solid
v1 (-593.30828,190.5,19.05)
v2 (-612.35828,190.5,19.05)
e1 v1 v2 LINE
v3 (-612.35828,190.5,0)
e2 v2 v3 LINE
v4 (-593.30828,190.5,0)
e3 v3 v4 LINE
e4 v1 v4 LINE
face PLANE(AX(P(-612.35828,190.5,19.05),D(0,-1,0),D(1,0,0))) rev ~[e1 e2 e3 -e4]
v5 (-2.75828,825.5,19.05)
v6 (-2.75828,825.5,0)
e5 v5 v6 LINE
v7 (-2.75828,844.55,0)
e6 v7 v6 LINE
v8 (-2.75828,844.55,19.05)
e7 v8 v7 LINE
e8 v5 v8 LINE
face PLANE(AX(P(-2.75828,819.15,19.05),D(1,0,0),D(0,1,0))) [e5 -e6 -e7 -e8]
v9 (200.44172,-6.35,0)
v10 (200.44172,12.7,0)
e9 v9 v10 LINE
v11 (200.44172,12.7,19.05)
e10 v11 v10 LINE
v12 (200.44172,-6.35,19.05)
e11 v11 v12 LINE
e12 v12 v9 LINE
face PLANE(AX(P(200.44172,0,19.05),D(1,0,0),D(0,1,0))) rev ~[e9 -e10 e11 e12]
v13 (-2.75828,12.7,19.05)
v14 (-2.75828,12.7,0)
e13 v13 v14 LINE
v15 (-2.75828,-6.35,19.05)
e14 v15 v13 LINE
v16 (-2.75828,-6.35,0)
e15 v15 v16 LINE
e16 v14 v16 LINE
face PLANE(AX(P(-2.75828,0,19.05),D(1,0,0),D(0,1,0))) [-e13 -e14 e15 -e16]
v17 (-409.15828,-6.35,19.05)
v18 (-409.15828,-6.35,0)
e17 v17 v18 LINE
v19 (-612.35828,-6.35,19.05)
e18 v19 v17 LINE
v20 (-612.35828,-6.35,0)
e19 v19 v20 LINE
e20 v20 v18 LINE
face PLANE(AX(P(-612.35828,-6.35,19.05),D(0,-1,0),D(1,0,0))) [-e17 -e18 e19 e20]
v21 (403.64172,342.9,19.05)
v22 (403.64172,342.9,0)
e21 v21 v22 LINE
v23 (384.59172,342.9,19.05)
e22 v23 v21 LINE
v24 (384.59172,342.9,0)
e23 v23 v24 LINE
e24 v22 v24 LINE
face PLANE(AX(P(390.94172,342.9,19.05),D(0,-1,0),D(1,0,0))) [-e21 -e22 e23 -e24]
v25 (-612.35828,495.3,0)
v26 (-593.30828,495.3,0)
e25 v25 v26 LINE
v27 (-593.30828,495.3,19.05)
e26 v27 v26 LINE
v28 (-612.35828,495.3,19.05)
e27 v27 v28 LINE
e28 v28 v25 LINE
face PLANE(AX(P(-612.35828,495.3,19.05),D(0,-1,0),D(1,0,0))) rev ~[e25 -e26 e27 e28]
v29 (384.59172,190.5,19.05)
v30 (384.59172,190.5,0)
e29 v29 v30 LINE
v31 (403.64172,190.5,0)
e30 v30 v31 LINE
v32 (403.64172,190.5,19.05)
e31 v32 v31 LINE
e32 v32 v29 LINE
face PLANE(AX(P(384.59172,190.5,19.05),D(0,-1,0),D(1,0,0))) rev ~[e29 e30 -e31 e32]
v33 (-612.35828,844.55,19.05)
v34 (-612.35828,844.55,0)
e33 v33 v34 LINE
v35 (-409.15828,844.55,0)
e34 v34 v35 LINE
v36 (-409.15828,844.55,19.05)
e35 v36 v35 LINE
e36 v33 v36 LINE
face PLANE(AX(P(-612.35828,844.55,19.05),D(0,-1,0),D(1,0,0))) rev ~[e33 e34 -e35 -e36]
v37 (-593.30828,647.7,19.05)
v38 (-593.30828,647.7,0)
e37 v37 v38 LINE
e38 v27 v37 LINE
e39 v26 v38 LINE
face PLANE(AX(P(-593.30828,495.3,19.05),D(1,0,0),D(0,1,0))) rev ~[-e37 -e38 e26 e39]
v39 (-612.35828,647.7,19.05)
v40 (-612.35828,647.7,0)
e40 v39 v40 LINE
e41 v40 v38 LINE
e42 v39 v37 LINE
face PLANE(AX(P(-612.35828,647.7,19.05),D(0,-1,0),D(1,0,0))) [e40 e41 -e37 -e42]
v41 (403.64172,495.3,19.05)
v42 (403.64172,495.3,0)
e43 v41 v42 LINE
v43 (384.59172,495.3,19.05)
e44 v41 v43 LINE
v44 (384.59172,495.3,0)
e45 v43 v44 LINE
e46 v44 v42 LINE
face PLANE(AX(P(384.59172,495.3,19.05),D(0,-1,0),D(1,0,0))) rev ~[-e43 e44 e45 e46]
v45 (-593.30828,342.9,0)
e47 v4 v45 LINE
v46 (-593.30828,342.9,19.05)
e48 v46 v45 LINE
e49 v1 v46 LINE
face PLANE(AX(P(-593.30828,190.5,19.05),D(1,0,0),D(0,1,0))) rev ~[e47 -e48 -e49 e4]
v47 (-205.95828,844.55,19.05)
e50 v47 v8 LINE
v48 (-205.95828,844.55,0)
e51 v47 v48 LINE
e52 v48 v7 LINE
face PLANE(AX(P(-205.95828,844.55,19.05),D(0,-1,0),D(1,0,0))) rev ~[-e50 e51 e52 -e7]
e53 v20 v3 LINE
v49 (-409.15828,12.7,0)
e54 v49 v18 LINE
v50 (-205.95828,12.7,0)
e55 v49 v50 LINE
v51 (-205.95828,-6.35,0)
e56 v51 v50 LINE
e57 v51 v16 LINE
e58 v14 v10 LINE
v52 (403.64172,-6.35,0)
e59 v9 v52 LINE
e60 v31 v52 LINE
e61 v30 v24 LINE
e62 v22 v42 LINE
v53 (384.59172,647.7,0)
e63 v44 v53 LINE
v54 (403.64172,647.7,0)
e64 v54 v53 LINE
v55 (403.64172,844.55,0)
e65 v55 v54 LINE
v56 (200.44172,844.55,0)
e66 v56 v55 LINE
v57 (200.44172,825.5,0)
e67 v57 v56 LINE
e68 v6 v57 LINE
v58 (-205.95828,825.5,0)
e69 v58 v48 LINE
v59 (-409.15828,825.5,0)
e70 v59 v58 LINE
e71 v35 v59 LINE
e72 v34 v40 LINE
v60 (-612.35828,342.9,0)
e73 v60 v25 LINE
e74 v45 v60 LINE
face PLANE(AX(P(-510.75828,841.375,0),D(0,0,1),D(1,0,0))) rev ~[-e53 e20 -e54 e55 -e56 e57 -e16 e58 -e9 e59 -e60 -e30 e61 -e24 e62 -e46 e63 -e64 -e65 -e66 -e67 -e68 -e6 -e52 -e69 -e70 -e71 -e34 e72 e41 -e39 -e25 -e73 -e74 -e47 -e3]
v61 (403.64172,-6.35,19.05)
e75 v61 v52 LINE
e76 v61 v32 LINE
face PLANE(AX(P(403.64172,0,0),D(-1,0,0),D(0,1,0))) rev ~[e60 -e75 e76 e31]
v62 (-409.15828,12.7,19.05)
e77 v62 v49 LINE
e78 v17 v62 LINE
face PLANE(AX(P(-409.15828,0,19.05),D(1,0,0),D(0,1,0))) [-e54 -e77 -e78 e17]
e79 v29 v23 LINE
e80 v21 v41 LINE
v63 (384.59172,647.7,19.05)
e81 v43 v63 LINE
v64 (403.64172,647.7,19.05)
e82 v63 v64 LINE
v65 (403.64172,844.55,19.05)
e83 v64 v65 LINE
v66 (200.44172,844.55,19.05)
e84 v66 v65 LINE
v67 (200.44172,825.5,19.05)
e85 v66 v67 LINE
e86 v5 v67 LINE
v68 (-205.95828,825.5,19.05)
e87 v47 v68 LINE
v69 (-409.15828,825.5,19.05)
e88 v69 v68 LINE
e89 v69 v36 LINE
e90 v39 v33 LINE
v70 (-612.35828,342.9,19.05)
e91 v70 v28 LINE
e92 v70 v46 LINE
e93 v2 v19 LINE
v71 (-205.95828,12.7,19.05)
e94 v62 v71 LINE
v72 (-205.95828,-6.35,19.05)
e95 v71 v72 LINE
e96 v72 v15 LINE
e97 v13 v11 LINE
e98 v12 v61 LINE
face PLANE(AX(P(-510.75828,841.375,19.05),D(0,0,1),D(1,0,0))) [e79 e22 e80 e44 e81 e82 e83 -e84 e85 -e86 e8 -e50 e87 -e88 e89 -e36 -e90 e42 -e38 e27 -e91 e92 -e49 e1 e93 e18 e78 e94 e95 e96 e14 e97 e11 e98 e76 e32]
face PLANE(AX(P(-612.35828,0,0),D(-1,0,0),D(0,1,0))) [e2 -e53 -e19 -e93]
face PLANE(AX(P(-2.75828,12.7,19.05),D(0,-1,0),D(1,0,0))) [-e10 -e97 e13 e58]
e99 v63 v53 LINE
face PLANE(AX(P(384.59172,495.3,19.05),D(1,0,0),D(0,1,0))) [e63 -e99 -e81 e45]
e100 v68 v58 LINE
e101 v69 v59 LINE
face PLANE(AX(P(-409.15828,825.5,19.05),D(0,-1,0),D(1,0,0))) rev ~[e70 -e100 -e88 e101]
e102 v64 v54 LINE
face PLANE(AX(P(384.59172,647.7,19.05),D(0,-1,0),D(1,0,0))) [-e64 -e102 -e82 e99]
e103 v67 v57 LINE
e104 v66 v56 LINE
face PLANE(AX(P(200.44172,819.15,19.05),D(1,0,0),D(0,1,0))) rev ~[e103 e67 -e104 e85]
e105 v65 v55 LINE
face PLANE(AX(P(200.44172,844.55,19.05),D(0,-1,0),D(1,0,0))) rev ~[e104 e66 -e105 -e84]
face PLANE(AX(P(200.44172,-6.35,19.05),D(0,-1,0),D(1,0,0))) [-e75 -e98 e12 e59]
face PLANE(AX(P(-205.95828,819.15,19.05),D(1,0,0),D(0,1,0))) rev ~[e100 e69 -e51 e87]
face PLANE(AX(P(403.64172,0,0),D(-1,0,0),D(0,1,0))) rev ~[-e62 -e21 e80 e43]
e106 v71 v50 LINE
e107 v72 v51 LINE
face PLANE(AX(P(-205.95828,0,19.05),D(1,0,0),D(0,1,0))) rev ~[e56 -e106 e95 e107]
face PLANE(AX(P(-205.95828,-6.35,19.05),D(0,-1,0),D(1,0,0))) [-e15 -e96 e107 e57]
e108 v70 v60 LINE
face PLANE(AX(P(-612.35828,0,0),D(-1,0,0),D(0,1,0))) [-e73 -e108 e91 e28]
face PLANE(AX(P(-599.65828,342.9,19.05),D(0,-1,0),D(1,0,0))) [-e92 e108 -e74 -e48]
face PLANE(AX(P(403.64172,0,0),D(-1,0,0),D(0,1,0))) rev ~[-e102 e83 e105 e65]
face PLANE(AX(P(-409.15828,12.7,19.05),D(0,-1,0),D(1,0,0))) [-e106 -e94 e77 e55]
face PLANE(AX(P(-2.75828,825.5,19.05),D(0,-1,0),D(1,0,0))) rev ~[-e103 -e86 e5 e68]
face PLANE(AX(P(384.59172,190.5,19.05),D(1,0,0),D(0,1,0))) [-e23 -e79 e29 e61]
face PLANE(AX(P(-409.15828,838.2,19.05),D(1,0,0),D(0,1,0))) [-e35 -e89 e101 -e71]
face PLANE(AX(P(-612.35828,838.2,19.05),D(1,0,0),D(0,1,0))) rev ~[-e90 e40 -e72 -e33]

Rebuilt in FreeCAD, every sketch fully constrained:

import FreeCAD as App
import Part
import Sketcher
from FreeCAD import Vector
Q = App.Units.Quantity

doc = App.newDocument("Part")
body = doc.addObject("PartDesign::Body", "Body")

# Sketch on XY plane
sketch1 = body.newObject("Sketcher::SketchObject", "Sketch")
sketch1.AttachmentSupport = (doc.getObject("XY_Plane"), [""])
sketch1.MapMode = "FlatFace"
sketch1.addGeometry([
    Part.LineSegment(Vector(-612, 838, 0), Vector(-612, 0, 0)),
    Part.LineSegment(Vector(-612, 0, 0), Vector(404, 0, 0)),
    Part.LineSegment(Vector(404, 0, 0), Vector(404, 838, 0)),
    Part.LineSegment(Vector(404, 838, 0), Vector(-612, 838, 0)),
], False)
sketch1.addConstraint([
    Sketcher.Constraint("Coincident", 0, 2, 1, 1),
    Sketcher.Constraint("Coincident", 1, 2, 2, 1),
    Sketcher.Constraint("Coincident", 2, 2, 3, 1),
    Sketcher.Constraint("Coincident", 3, 2, 0, 1),
    Sketcher.Constraint("Vertical", 0),
    Sketcher.Constraint("Horizontal", 1),
    Sketcher.Constraint("Vertical", 2),
    Sketcher.Constraint("Horizontal", 3),
    Sketcher.Constraint("PointOnObject", 0, 2, -1),
    Sketcher.Constraint("DistanceX", 1, 1, 1, 2, Q("40 in")),
    Sketcher.Constraint("DistanceY", 0, 2, 0, 1, Q("33 in")),
    Sketcher.Constraint("DistanceX", 0, 2, -1, 1, Q("612.35828 mm")),
])
pad1 = body.newObject("PartDesign::Pad", "Pad")
pad1.Profile = sketch1
pad1.Length = Q("0.75 in")

# Sketch on XY plane
sketch2 = body.newObject("Sketcher::SketchObject", "Sketch001")
sketch2.AttachmentSupport = (doc.getObject("XY_Plane"), [""])
sketch2.MapMode = "FlatFace"
sketch2.AttachmentOffset = App.Placement(Vector(0, 0, 0.75 * 25.4), App.Rotation())
sketch2.addGeometry([
    Part.LineSegment(Vector(391, 343, 0), Vector(391, 190, 0)),  # 0
    Part.LineSegment(Vector(391, 190, 0), Vector(404, 190, 0)),  # 1
    Part.LineSegment(Vector(404, 190, 0), Vector(404, 343, 0)),  # 2
    Part.LineSegment(Vector(404, 343, 0), Vector(391, 343, 0)),  # 3
    Part.LineSegment(Vector(385, 648, 0), Vector(385, 495, 0)),  # 4
    Part.LineSegment(Vector(385, 495, 0), Vector(404, 495, 0)),  # 5
    Part.LineSegment(Vector(404, 495, 0), Vector(404, 648, 0)),  # 6
    Part.LineSegment(Vector(404, 648, 0), Vector(385, 648, 0)),  # 7
    Part.LineSegment(Vector(-612, 343, 0), Vector(-612, 190, 0)),  # 8
    Part.LineSegment(Vector(-612, 190, 0), Vector(-600, 190, 0)),  # 9
    Part.LineSegment(Vector(-600, 190, 0), Vector(-600, 343, 0)),  # 10
    Part.LineSegment(Vector(-600, 343, 0), Vector(-612, 343, 0)),  # 11
    Part.LineSegment(Vector(-612, 648, 0), Vector(-612, 495, 0)),  # 12
    Part.LineSegment(Vector(-612, 495, 0), Vector(-600, 495, 0)),  # 13
    Part.LineSegment(Vector(-600, 495, 0), Vector(-600, 648, 0)),  # 14
    Part.LineSegment(Vector(-600, 648, 0), Vector(-612, 648, 0)),  # 15
    Part.LineSegment(Vector(-409, 19, 0), Vector(-409, 0, 0)),  # 16
    Part.LineSegment(Vector(-409, 0, 0), Vector(-206, 0, 0)),  # 17
    Part.LineSegment(Vector(-206, 0, 0), Vector(-206, 19, 0)),  # 18
    Part.LineSegment(Vector(-206, 19, 0), Vector(-409, 19, 0)),  # 19
    Part.LineSegment(Vector(-3, 19, 0), Vector(-3, 0, 0)),  # 20
    Part.LineSegment(Vector(-3, 0, 0), Vector(200, 0, 0)),  # 21
    Part.LineSegment(Vector(200, 0, 0), Vector(200, 19, 0)),  # 22
    Part.LineSegment(Vector(200, 19, 0), Vector(-3, 19, 0)),  # 23
    Part.LineSegment(Vector(-3, 838, 0), Vector(-3, 819, 0)),  # 24
    Part.LineSegment(Vector(-3, 819, 0), Vector(200, 819, 0)),  # 25
    Part.LineSegment(Vector(200, 819, 0), Vector(200, 838, 0)),  # 26
    Part.LineSegment(Vector(200, 838, 0), Vector(-3, 838, 0)),  # 27
    Part.LineSegment(Vector(-409, 838, 0), Vector(-409, 819, 0)),  # 28
    Part.LineSegment(Vector(-409, 819, 0), Vector(-206, 819, 0)),  # 29
    Part.LineSegment(Vector(-206, 819, 0), Vector(-206, 838, 0)),  # 30
    Part.LineSegment(Vector(-206, 838, 0), Vector(-409, 838, 0)),  # 31
], False)
sketch2.addConstraint([
    Sketcher.Constraint("Coincident", 0, 2, 1, 1),
    Sketcher.Constraint("Coincident", 1, 2, 2, 1),
    Sketcher.Constraint("Coincident", 2, 2, 3, 1),
    Sketcher.Constraint("Coincident", 3, 2, 0, 1),
    Sketcher.Constraint("Coincident", 4, 2, 5, 1),
    Sketcher.Constraint("Coincident", 5, 2, 6, 1),
    Sketcher.Constraint("Coincident", 6, 2, 7, 1),
    Sketcher.Constraint("Coincident", 7, 2, 4, 1),
    Sketcher.Constraint("Coincident", 8, 2, 9, 1),
    Sketcher.Constraint("Coincident", 9, 2, 10, 1),
    Sketcher.Constraint("Coincident", 10, 2, 11, 1),
    Sketcher.Constraint("Coincident", 11, 2, 8, 1),
    Sketcher.Constraint("Coincident", 12, 2, 13, 1),
    Sketcher.Constraint("Coincident", 13, 2, 14, 1),
    Sketcher.Constraint("Coincident", 14, 2, 15, 1),
    Sketcher.Constraint("Coincident", 15, 2, 12, 1),
    Sketcher.Constraint("Coincident", 16, 2, 17, 1),
    Sketcher.Constraint("Coincident", 17, 2, 18, 1),
    Sketcher.Constraint("Coincident", 18, 2, 19, 1),
    Sketcher.Constraint("Coincident", 19, 2, 16, 1),
    Sketcher.Constraint("Coincident", 20, 2, 21, 1),
    Sketcher.Constraint("Coincident", 21, 2, 22, 1),
    Sketcher.Constraint("Coincident", 22, 2, 23, 1),
    Sketcher.Constraint("Coincident", 23, 2, 20, 1),
    Sketcher.Constraint("Coincident", 24, 2, 25, 1),
    Sketcher.Constraint("Coincident", 25, 2, 26, 1),
    Sketcher.Constraint("Coincident", 26, 2, 27, 1),
    Sketcher.Constraint("Coincident", 27, 2, 24, 1),
    Sketcher.Constraint("Coincident", 28, 2, 29, 1),
    Sketcher.Constraint("Coincident", 29, 2, 30, 1),
    Sketcher.Constraint("Coincident", 30, 2, 31, 1),
    Sketcher.Constraint("Coincident", 31, 2, 28, 1),
    Sketcher.Constraint("Vertical", 0),
    Sketcher.Constraint("Horizontal", 1),
    Sketcher.Constraint("Vertical", 2),
    Sketcher.Constraint("Horizontal", 3),
    Sketcher.Constraint("Vertical", 4),
    Sketcher.Constraint("Horizontal", 5),
    Sketcher.Constraint("Vertical", 6),
    Sketcher.Constraint("Horizontal", 7),
    Sketcher.Constraint("Vertical", 8),
    Sketcher.Constraint("Horizontal", 9),
    Sketcher.Constraint("Vertical", 10),
    Sketcher.Constraint("Horizontal", 11),
    Sketcher.Constraint("Vertical", 12),
    Sketcher.Constraint("Horizontal", 13),
    Sketcher.Constraint("Vertical", 14),
    Sketcher.Constraint("Horizontal", 15),
    Sketcher.Constraint("Vertical", 16),
    Sketcher.Constraint("Horizontal", 17),
    Sketcher.Constraint("Vertical", 18),
    Sketcher.Constraint("Horizontal", 19),
    Sketcher.Constraint("Vertical", 20),
    Sketcher.Constraint("Horizontal", 21),
    Sketcher.Constraint("Vertical", 22),
    Sketcher.Constraint("Horizontal", 23),
    Sketcher.Constraint("Vertical", 24),
    Sketcher.Constraint("Horizontal", 25),
    Sketcher.Constraint("Vertical", 26),
    Sketcher.Constraint("Horizontal", 27),
    Sketcher.Constraint("Vertical", 28),
    Sketcher.Constraint("Horizontal", 29),
    Sketcher.Constraint("Vertical", 30),
    Sketcher.Constraint("Horizontal", 31),
    Sketcher.Constraint("PointOnObject", 16, 2, -1),
    Sketcher.Constraint("PointOnObject", 20, 2, -1),
    Sketcher.Constraint("Horizontal", 1, 2, 8, 2),
    Sketcher.Constraint("Horizontal", 3, 2, 10, 2),
    Sketcher.Constraint("Horizontal", 5, 2, 12, 2),
    Sketcher.Constraint("Horizontal", 7, 2, 14, 2),
    Sketcher.Constraint("Horizontal", 19, 2, 22, 2),
    Sketcher.Constraint("Horizontal", 25, 2, 28, 2),
    Sketcher.Constraint("Horizontal", 27, 2, 30, 2),
    Sketcher.Constraint("Vertical", 2, 2, 5, 2),
    Sketcher.Constraint("Vertical", 11, 2, 12, 2),
    Sketcher.Constraint("Vertical", 10, 2, 13, 2),
    Sketcher.Constraint("Vertical", 23, 2, 24, 2),
    Sketcher.Constraint("Vertical", 22, 2, 25, 2),
    Sketcher.Constraint("Vertical", 19, 2, 28, 2),
    Sketcher.Constraint("Vertical", 18, 2, 29, 2),
    Sketcher.Constraint("Equal", 3, 9),
    Sketcher.Constraint("Equal", 19, 21),
    Sketcher.Constraint("Equal", 2, 4),
    Sketcher.Constraint("Equal", 7, 16),
    Sketcher.Constraint("Equal", 22, 24),
    Sketcher.Constraint("DistanceX", 17, 1, 17, 2, Q("8 in")),
    Sketcher.Constraint("DistanceY", 0, 2, 0, 1, Q("6 in")),
    Sketcher.Constraint("DistanceX", 1, 1, 1, 2, Q("0.5 in")),
    Sketcher.Constraint("DistanceY", -1, 1, 26, 2, Q("33 in")),
    Sketcher.Constraint("DistanceY", 3, 2, 4, 2, Q("6 in")),
    Sketcher.Constraint("DistanceX", 8, 2, 1, 2, Q("40 in")),
    Sketcher.Constraint("DistanceX", 8, 2, 16, 2, Q("8 in")),
    Sketcher.Constraint("DistanceX", 17, 2, 20, 2, Q("8 in")),
    Sketcher.Constraint("DistanceX", 5, 1, 5, 2, Q("0.75 in")),
    Sketcher.Constraint("DistanceY", -1, 1, 0, 2, Q("7.5 in")),
    Sketcher.Constraint("DistanceX", -1, 1, 0, 2, Q("390.94172 mm")),
])
pocket1 = body.newObject("PartDesign::Pocket", "Pocket")
pocket1.Profile = sketch2
pocket1.Type = "ThroughAll"

# Sketch on XY plane
sketch3 = body.newObject("Sketcher::SketchObject", "Sketch002")
sketch3.AttachmentSupport = (doc.getObject("XY_Plane"), [""])
sketch3.MapMode = "FlatFace"
sketch3.AttachmentOffset = App.Placement(Vector(0, 0, 0.75 * 25.4), App.Rotation())
sketch3.addGeometry([
    Part.LineSegment(Vector(-612, 845, 0), Vector(-612, 838, 0)),  # 0
    Part.LineSegment(Vector(-612, 838, 0), Vector(-409, 838, 0)),  # 1
    Part.LineSegment(Vector(-409, 838, 0), Vector(-409, 845, 0)),  # 2
    Part.LineSegment(Vector(-409, 845, 0), Vector(-612, 845, 0)),  # 3
    Part.LineSegment(Vector(-3, 826, 0), Vector(-3, 819, 0)),  # 4
    Part.LineSegment(Vector(-3, 819, 0), Vector(200, 819, 0)),  # 5
    Part.LineSegment(Vector(200, 819, 0), Vector(200, 826, 0)),  # 6
    Part.LineSegment(Vector(200, 826, 0), Vector(-3, 826, 0)),  # 7
    Part.LineSegment(Vector(-409, 826, 0), Vector(-409, 819, 0)),  # 8
    Part.LineSegment(Vector(-409, 819, 0), Vector(-206, 819, 0)),  # 9
    Part.LineSegment(Vector(-206, 819, 0), Vector(-206, 826, 0)),  # 10
    Part.LineSegment(Vector(-206, 826, 0), Vector(-409, 826, 0)),  # 11
    Part.LineSegment(Vector(-206, 845, 0), Vector(-206, 838, 0)),  # 12
    Part.LineSegment(Vector(-206, 838, 0), Vector(-3, 838, 0)),  # 13
    Part.LineSegment(Vector(-3, 838, 0), Vector(-3, 845, 0)),  # 14
    Part.LineSegment(Vector(-3, 845, 0), Vector(-206, 845, 0)),  # 15
    Part.LineSegment(Vector(200, 845, 0), Vector(200, 838, 0)),  # 16
    Part.LineSegment(Vector(200, 838, 0), Vector(404, 838, 0)),  # 17
    Part.LineSegment(Vector(404, 838, 0), Vector(404, 845, 0)),  # 18
    Part.LineSegment(Vector(404, 845, 0), Vector(200, 845, 0)),  # 19
    Part.LineSegment(Vector(-409, 19, 0), Vector(-409, 13, 0)),  # 20
    Part.LineSegment(Vector(-409, 13, 0), Vector(-206, 13, 0)),  # 21
    Part.LineSegment(Vector(-206, 13, 0), Vector(-206, 19, 0)),  # 22
    Part.LineSegment(Vector(-206, 19, 0), Vector(-409, 19, 0)),  # 23
    Part.LineSegment(Vector(-612, 0, 0), Vector(-612, -6, 0)),  # 24
    Part.LineSegment(Vector(-612, -6, 0), Vector(-409, -6, 0)),  # 25
    Part.LineSegment(Vector(-409, -6, 0), Vector(-409, 0, 0)),  # 26
    Part.LineSegment(Vector(-409, 0, 0), Vector(-612, 0, 0)),  # 27
    Part.LineSegment(Vector(-3, 19, 0), Vector(-3, 13, 0)),  # 28
    Part.LineSegment(Vector(-3, 13, 0), Vector(200, 13, 0)),  # 29
    Part.LineSegment(Vector(200, 13, 0), Vector(200, 19, 0)),  # 30
    Part.LineSegment(Vector(200, 19, 0), Vector(-3, 19, 0)),  # 31
    Part.LineSegment(Vector(200, 0, 0), Vector(200, -6, 0)),  # 32
    Part.LineSegment(Vector(200, -6, 0), Vector(404, -6, 0)),  # 33
    Part.LineSegment(Vector(404, -6, 0), Vector(404, 0, 0)),  # 34
    Part.LineSegment(Vector(404, 0, 0), Vector(200, 0, 0)),  # 35
    Part.LineSegment(Vector(-206, 0, 0), Vector(-206, -6, 0)),  # 36
    Part.LineSegment(Vector(-206, -6, 0), Vector(-3, -6, 0)),  # 37
    Part.LineSegment(Vector(-3, -6, 0), Vector(-3, 0, 0)),  # 38
    Part.LineSegment(Vector(-3, 0, 0), Vector(-206, 0, 0)),  # 39
    Part.LineSegment(Vector(-600, 343, 0), Vector(-600, 190, 0)),  # 40
    Part.LineSegment(Vector(-600, 190, 0), Vector(-593, 190, 0)),  # 41
    Part.LineSegment(Vector(-593, 190, 0), Vector(-593, 343, 0)),  # 42
    Part.LineSegment(Vector(-593, 343, 0), Vector(-600, 343, 0)),  # 43
    Part.LineSegment(Vector(-600, 648, 0), Vector(-600, 495, 0)),  # 44
    Part.LineSegment(Vector(-600, 495, 0), Vector(-593, 495, 0)),  # 45
    Part.LineSegment(Vector(-593, 495, 0), Vector(-593, 648, 0)),  # 46
    Part.LineSegment(Vector(-593, 648, 0), Vector(-600, 648, 0)),  # 47
    Part.LineSegment(Vector(385, 343, 0), Vector(385, 190, 0)),  # 48
    Part.LineSegment(Vector(385, 190, 0), Vector(391, 190, 0)),  # 49
    Part.LineSegment(Vector(391, 190, 0), Vector(391, 343, 0)),  # 50
    Part.LineSegment(Vector(391, 343, 0), Vector(385, 343, 0)),  # 51
    Part.LineSegment(Vector(378, 648, 0), Vector(378, 495, 0)),  # 52
    Part.LineSegment(Vector(378, 495, 0), Vector(385, 495, 0)),  # 53
    Part.LineSegment(Vector(385, 495, 0), Vector(385, 648, 0)),  # 54
    Part.LineSegment(Vector(385, 648, 0), Vector(378, 648, 0)),  # 55
], False)
sketch3.addConstraint([
    Sketcher.Constraint("Coincident", 0, 2, 1, 1),
    Sketcher.Constraint("Coincident", 1, 2, 2, 1),
    Sketcher.Constraint("Coincident", 2, 2, 3, 1),
    Sketcher.Constraint("Coincident", 3, 2, 0, 1),
    Sketcher.Constraint("Coincident", 4, 2, 5, 1),
    Sketcher.Constraint("Coincident", 5, 2, 6, 1),
    Sketcher.Constraint("Coincident", 6, 2, 7, 1),
    Sketcher.Constraint("Coincident", 7, 2, 4, 1),
    Sketcher.Constraint("Coincident", 8, 2, 9, 1),
    Sketcher.Constraint("Coincident", 9, 2, 10, 1),
    Sketcher.Constraint("Coincident", 10, 2, 11, 1),
    Sketcher.Constraint("Coincident", 11, 2, 8, 1),
    Sketcher.Constraint("Coincident", 12, 2, 13, 1),
    Sketcher.Constraint("Coincident", 13, 2, 14, 1),
    Sketcher.Constraint("Coincident", 14, 2, 15, 1),
    Sketcher.Constraint("Coincident", 15, 2, 12, 1),
    Sketcher.Constraint("Coincident", 16, 2, 17, 1),
    Sketcher.Constraint("Coincident", 17, 2, 18, 1),
    Sketcher.Constraint("Coincident", 18, 2, 19, 1),
    Sketcher.Constraint("Coincident", 19, 2, 16, 1),
    Sketcher.Constraint("Coincident", 20, 2, 21, 1),
    Sketcher.Constraint("Coincident", 21, 2, 22, 1),
    Sketcher.Constraint("Coincident", 22, 2, 23, 1),
    Sketcher.Constraint("Coincident", 23, 2, 20, 1),
    Sketcher.Constraint("Coincident", 24, 2, 25, 1),
    Sketcher.Constraint("Coincident", 25, 2, 26, 1),
    Sketcher.Constraint("Coincident", 26, 2, 27, 1),
    Sketcher.Constraint("Coincident", 27, 2, 24, 1),
    Sketcher.Constraint("Coincident", 28, 2, 29, 1),
    Sketcher.Constraint("Coincident", 29, 2, 30, 1),
    Sketcher.Constraint("Coincident", 30, 2, 31, 1),
    Sketcher.Constraint("Coincident", 31, 2, 28, 1),
    Sketcher.Constraint("Coincident", 32, 2, 33, 1),
    Sketcher.Constraint("Coincident", 33, 2, 34, 1),
    Sketcher.Constraint("Coincident", 34, 2, 35, 1),
    Sketcher.Constraint("Coincident", 35, 2, 32, 1),
    Sketcher.Constraint("Coincident", 36, 2, 37, 1),
    Sketcher.Constraint("Coincident", 37, 2, 38, 1),
    Sketcher.Constraint("Coincident", 38, 2, 39, 1),
    Sketcher.Constraint("Coincident", 39, 2, 36, 1),
    Sketcher.Constraint("Coincident", 40, 2, 41, 1),
    Sketcher.Constraint("Coincident", 41, 2, 42, 1),
    Sketcher.Constraint("Coincident", 42, 2, 43, 1),
    Sketcher.Constraint("Coincident", 43, 2, 40, 1),
    Sketcher.Constraint("Coincident", 44, 2, 45, 1),
    Sketcher.Constraint("Coincident", 45, 2, 46, 1),
    Sketcher.Constraint("Coincident", 46, 2, 47, 1),
    Sketcher.Constraint("Coincident", 47, 2, 44, 1),
    Sketcher.Constraint("Coincident", 48, 2, 49, 1),
    Sketcher.Constraint("Coincident", 49, 2, 50, 1),
    Sketcher.Constraint("Coincident", 50, 2, 51, 1),
    Sketcher.Constraint("Coincident", 51, 2, 48, 1),
    Sketcher.Constraint("Coincident", 52, 2, 53, 1),
    Sketcher.Constraint("Coincident", 53, 2, 54, 1),
    Sketcher.Constraint("Coincident", 54, 2, 55, 1),
    Sketcher.Constraint("Coincident", 55, 2, 52, 1),
    Sketcher.Constraint("Vertical", 0),
    Sketcher.Constraint("Horizontal", 1),
    Sketcher.Constraint("Vertical", 2),
    Sketcher.Constraint("Horizontal", 3),
    Sketcher.Constraint("Vertical", 4),
    Sketcher.Constraint("Horizontal", 5),
    Sketcher.Constraint("Vertical", 6),
    Sketcher.Constraint("Horizontal", 7),
    Sketcher.Constraint("Vertical", 8),
    Sketcher.Constraint("Horizontal", 9),
    Sketcher.Constraint("Vertical", 10),
    Sketcher.Constraint("Horizontal", 11),
    Sketcher.Constraint("Vertical", 12),
    Sketcher.Constraint("Horizontal", 13),
    Sketcher.Constraint("Vertical", 14),
    Sketcher.Constraint("Horizontal", 15),
    Sketcher.Constraint("Vertical", 16),
    Sketcher.Constraint("Horizontal", 17),
    Sketcher.Constraint("Vertical", 18),
    Sketcher.Constraint("Horizontal", 19),
    Sketcher.Constraint("Vertical", 20),
    Sketcher.Constraint("Horizontal", 21),
    Sketcher.Constraint("Vertical", 22),
    Sketcher.Constraint("Horizontal", 23),
    Sketcher.Constraint("Vertical", 24),
    Sketcher.Constraint("Horizontal", 25),
    Sketcher.Constraint("Vertical", 26),
    Sketcher.Constraint("Horizontal", 27),
    Sketcher.Constraint("Vertical", 28),
    Sketcher.Constraint("Horizontal", 29),
    Sketcher.Constraint("Vertical", 30),
    Sketcher.Constraint("Horizontal", 31),
    Sketcher.Constraint("Vertical", 32),
    Sketcher.Constraint("Horizontal", 33),
    Sketcher.Constraint("Vertical", 34),
    Sketcher.Constraint("Horizontal", 35),
    Sketcher.Constraint("Vertical", 36),
    Sketcher.Constraint("Horizontal", 37),
    Sketcher.Constraint("Vertical", 38),
    Sketcher.Constraint("Horizontal", 39),
    Sketcher.Constraint("Vertical", 40),
    Sketcher.Constraint("Horizontal", 41),
    Sketcher.Constraint("Vertical", 42),
    Sketcher.Constraint("Horizontal", 43),
    Sketcher.Constraint("Vertical", 44),
    Sketcher.Constraint("Horizontal", 45),
    Sketcher.Constraint("Vertical", 46),
    Sketcher.Constraint("Horizontal", 47),
    Sketcher.Constraint("Vertical", 48),
    Sketcher.Constraint("Horizontal", 49),
    Sketcher.Constraint("Vertical", 50),
    Sketcher.Constraint("Horizontal", 51),
    Sketcher.Constraint("Vertical", 52),
    Sketcher.Constraint("Horizontal", 53),
    Sketcher.Constraint("Vertical", 54),
    Sketcher.Constraint("Horizontal", 55),
    Sketcher.Constraint("PointOnObject", 26, 2, -1),
    Sketcher.Constraint("PointOnObject", 34, 2, -1),
    Sketcher.Constraint("PointOnObject", 38, 2, -1),
    Sketcher.Constraint("Horizontal", 5, 2, 8, 2),
    Sketcher.Constraint("Horizontal", 7, 2, 10, 2),
    Sketcher.Constraint("Horizontal", 1, 2, 12, 2),
    Sketcher.Constraint("Horizontal", 3, 2, 14, 2),
    Sketcher.Constraint("Horizontal", 13, 2, 16, 2),
    Sketcher.Constraint("Horizontal", 15, 2, 18, 2),
    Sketcher.Constraint("Horizontal", 21, 2, 28, 2),
    Sketcher.Constraint("Horizontal", 23, 2, 30, 2),
    Sketcher.Constraint("Horizontal", 25, 2, 32, 2),
    Sketcher.Constraint("Horizontal", 33, 2, 36, 2),
    Sketcher.Constraint("Horizontal", 41, 2, 48, 2),
    Sketcher.Constraint("Horizontal", 43, 2, 50, 2),
    Sketcher.Constraint("Horizontal", 45, 2, 52, 2),
    Sketcher.Constraint("Horizontal", 47, 2, 54, 2),
    Sketcher.Constraint("Vertical", 2, 2, 8, 2),
    Sketcher.Constraint("Vertical", 10, 2, 12, 2),
    Sketcher.Constraint("Vertical", 7, 2, 13, 2),
    Sketcher.Constraint("Vertical", 6, 2, 16, 2),
    Sketcher.Constraint("Vertical", 11, 2, 20, 2),
    Sketcher.Constraint("Vertical", 15, 2, 21, 2),
    Sketcher.Constraint("Vertical", 3, 2, 24, 2),
    Sketcher.Constraint("Vertical", 23, 2, 25, 2),
    Sketcher.Constraint("Vertical", 14, 2, 28, 2),
    Sketcher.Constraint("Vertical", 19, 2, 29, 2),
    Sketcher.Constraint("Vertical", 30, 2, 32, 2),
    Sketcher.Constraint("Vertical", 18, 2, 33, 2),
    Sketcher.Constraint("Vertical", 22, 2, 36, 2),
    Sketcher.Constraint("Vertical", 31, 2, 37, 2),
    Sketcher.Constraint("Vertical", 43, 2, 44, 2),
    Sketcher.Constraint("Vertical", 42, 2, 45, 2),
    Sketcher.Constraint("Vertical", 51, 2, 53, 2),
    Sketcher.Constraint("Equal", 3, 5),
    Sketcher.Constraint("Equal", 7, 9),
    Sketcher.Constraint("Equal", 11, 13),
    Sketcher.Constraint("Equal", 15, 17),
    Sketcher.Constraint("Equal", 47, 49),
    Sketcher.Constraint("Equal", 51, 53),
    Sketcher.Constraint("Equal", 55, 0),
    Sketcher.Constraint("Equal", 2, 4),
    Sketcher.Constraint("Equal", 18, 20),
    Sketcher.Constraint("Equal", 22, 24),
    Sketcher.Constraint("Equal", 42, 44),
    Sketcher.Constraint("DistanceX", 1, 1, 1, 2, Q("8 in")),
    Sketcher.Constraint("DistanceY", 40, 2, 40, 1, Q("6 in")),
    Sketcher.Constraint("DistanceY", -1, 1, 0, 2, Q("33 in")),
    Sketcher.Constraint("DistanceY", 4, 2, 2, 2, Q("1 in")),
    Sketcher.Constraint("DistanceY", 20, 2, 11, 2, Q("32 in")),
    Sketcher.Constraint("DistanceY", 24, 2, 23, 2, Q("1 in")),
    Sketcher.Constraint("DistanceY", 20, 2, 40, 2, Q("7 in")),
    Sketcher.Constraint("DistanceY", 43, 2, 44, 2, Q("6 in")),
    Sketcher.Constraint("DistanceX", 52, 2, 17, 2, Q("1 in")),
    Sketcher.Constraint("DistanceX", 27, 2, 40, 2, Q("0.5 in")),
    Sketcher.Constraint("DistanceX", 0, 2, -1, 1, Q("612.35828 mm")),
])
pad2 = body.newObject("PartDesign::Pad", "Pad001")
pad2.Profile = sketch3
pad2.Length = Q("0.75 in")
pad2.Reversed = True

# Sketch on XY plane
sketch4 = body.newObject("Sketcher::SketchObject", "Sketch003")
sketch4.AttachmentSupport = (doc.getObject("XY_Plane"), [""])
sketch4.MapMode = "FlatFace"
sketch4.AttachmentOffset = App.Placement(Vector(0, 0, 0.75 * 25.4), App.Rotation())
sketch4.addGeometry([
    Part.LineSegment(Vector(-600, 648, 0), Vector(-600, 495, 0)),  # 0
    Part.LineSegment(Vector(-600, 495, 0), Vector(-593, 495, 0)),  # 1
    Part.LineSegment(Vector(-593, 495, 0), Vector(-593, 648, 0)),  # 2
    Part.LineSegment(Vector(-593, 648, 0), Vector(-600, 648, 0)),  # 3
    Part.LineSegment(Vector(-600, 343, 0), Vector(-600, 190, 0)),  # 4
    Part.LineSegment(Vector(-600, 190, 0), Vector(-593, 190, 0)),  # 5
    Part.LineSegment(Vector(-593, 190, 0), Vector(-593, 343, 0)),  # 6
    Part.LineSegment(Vector(-593, 343, 0), Vector(-600, 343, 0)),  # 7
    Part.LineSegment(Vector(385, 343, 0), Vector(385, 190, 0)),  # 8
    Part.LineSegment(Vector(385, 190, 0), Vector(391, 190, 0)),  # 9
    Part.LineSegment(Vector(391, 190, 0), Vector(391, 343, 0)),  # 10
    Part.LineSegment(Vector(391, 343, 0), Vector(385, 343, 0)),  # 11
    Part.LineSegment(Vector(385, 648, 0), Vector(385, 495, 0)),  # 12
    Part.LineSegment(Vector(385, 495, 0), Vector(391, 495, 0)),  # 13
    Part.LineSegment(Vector(391, 495, 0), Vector(391, 648, 0)),  # 14
    Part.LineSegment(Vector(391, 648, 0), Vector(385, 648, 0)),  # 15
], False)
sketch4.addConstraint([
    Sketcher.Constraint("Coincident", 0, 2, 1, 1),
    Sketcher.Constraint("Coincident", 1, 2, 2, 1),
    Sketcher.Constraint("Coincident", 2, 2, 3, 1),
    Sketcher.Constraint("Coincident", 3, 2, 0, 1),
    Sketcher.Constraint("Coincident", 4, 2, 5, 1),
    Sketcher.Constraint("Coincident", 5, 2, 6, 1),
    Sketcher.Constraint("Coincident", 6, 2, 7, 1),
    Sketcher.Constraint("Coincident", 7, 2, 4, 1),
    Sketcher.Constraint("Coincident", 8, 2, 9, 1),
    Sketcher.Constraint("Coincident", 9, 2, 10, 1),
    Sketcher.Constraint("Coincident", 10, 2, 11, 1),
    Sketcher.Constraint("Coincident", 11, 2, 8, 1),
    Sketcher.Constraint("Coincident", 12, 2, 13, 1),
    Sketcher.Constraint("Coincident", 13, 2, 14, 1),
    Sketcher.Constraint("Coincident", 14, 2, 15, 1),
    Sketcher.Constraint("Coincident", 15, 2, 12, 1),
    Sketcher.Constraint("Vertical", 0),
    Sketcher.Constraint("Horizontal", 1),
    Sketcher.Constraint("Vertical", 2),
    Sketcher.Constraint("Horizontal", 3),
    Sketcher.Constraint("Vertical", 4),
    Sketcher.Constraint("Horizontal", 5),
    Sketcher.Constraint("Vertical", 6),
    Sketcher.Constraint("Horizontal", 7),
    Sketcher.Constraint("Vertical", 8),
    Sketcher.Constraint("Horizontal", 9),
    Sketcher.Constraint("Vertical", 10),
    Sketcher.Constraint("Horizontal", 11),
    Sketcher.Constraint("Vertical", 12),
    Sketcher.Constraint("Horizontal", 13),
    Sketcher.Constraint("Vertical", 14),
    Sketcher.Constraint("Horizontal", 15),
    Sketcher.Constraint("Horizontal", 5, 2, 8, 2),
    Sketcher.Constraint("Horizontal", 7, 2, 10, 2),
    Sketcher.Constraint("Horizontal", 1, 2, 12, 2),
    Sketcher.Constraint("Horizontal", 3, 2, 14, 2),
    Sketcher.Constraint("Vertical", 3, 2, 4, 2),
    Sketcher.Constraint("Vertical", 2, 2, 5, 2),
    Sketcher.Constraint("Vertical", 11, 2, 12, 2),
    Sketcher.Constraint("Vertical", 10, 2, 13, 2),
    Sketcher.Constraint("Equal", 7, 9),
    Sketcher.Constraint("Equal", 2, 4),
    Sketcher.Constraint("DistanceY", 0, 2, 0, 1, Q("6 in")),
    Sketcher.Constraint("DistanceY", 4, 2, 0, 2, Q("12 in")),
    Sketcher.Constraint("DistanceX", 4, 2, 9, 2, Q("39 in")),
    Sketcher.Constraint("DistanceX", 1, 1, 1, 2, Q("0.25 in")),
    Sketcher.Constraint("DistanceY", -1, 1, 0, 2, Q("19.5 in")),
    Sketcher.Constraint("DistanceX", 0, 2, -1, 1, Q("599.65828 mm")),
])
pocket2 = body.newObject("PartDesign::Pocket", "Pocket001")
pocket2.Profile = sketch4
pocket2.Type = "ThroughAll"

doc.recompute()
